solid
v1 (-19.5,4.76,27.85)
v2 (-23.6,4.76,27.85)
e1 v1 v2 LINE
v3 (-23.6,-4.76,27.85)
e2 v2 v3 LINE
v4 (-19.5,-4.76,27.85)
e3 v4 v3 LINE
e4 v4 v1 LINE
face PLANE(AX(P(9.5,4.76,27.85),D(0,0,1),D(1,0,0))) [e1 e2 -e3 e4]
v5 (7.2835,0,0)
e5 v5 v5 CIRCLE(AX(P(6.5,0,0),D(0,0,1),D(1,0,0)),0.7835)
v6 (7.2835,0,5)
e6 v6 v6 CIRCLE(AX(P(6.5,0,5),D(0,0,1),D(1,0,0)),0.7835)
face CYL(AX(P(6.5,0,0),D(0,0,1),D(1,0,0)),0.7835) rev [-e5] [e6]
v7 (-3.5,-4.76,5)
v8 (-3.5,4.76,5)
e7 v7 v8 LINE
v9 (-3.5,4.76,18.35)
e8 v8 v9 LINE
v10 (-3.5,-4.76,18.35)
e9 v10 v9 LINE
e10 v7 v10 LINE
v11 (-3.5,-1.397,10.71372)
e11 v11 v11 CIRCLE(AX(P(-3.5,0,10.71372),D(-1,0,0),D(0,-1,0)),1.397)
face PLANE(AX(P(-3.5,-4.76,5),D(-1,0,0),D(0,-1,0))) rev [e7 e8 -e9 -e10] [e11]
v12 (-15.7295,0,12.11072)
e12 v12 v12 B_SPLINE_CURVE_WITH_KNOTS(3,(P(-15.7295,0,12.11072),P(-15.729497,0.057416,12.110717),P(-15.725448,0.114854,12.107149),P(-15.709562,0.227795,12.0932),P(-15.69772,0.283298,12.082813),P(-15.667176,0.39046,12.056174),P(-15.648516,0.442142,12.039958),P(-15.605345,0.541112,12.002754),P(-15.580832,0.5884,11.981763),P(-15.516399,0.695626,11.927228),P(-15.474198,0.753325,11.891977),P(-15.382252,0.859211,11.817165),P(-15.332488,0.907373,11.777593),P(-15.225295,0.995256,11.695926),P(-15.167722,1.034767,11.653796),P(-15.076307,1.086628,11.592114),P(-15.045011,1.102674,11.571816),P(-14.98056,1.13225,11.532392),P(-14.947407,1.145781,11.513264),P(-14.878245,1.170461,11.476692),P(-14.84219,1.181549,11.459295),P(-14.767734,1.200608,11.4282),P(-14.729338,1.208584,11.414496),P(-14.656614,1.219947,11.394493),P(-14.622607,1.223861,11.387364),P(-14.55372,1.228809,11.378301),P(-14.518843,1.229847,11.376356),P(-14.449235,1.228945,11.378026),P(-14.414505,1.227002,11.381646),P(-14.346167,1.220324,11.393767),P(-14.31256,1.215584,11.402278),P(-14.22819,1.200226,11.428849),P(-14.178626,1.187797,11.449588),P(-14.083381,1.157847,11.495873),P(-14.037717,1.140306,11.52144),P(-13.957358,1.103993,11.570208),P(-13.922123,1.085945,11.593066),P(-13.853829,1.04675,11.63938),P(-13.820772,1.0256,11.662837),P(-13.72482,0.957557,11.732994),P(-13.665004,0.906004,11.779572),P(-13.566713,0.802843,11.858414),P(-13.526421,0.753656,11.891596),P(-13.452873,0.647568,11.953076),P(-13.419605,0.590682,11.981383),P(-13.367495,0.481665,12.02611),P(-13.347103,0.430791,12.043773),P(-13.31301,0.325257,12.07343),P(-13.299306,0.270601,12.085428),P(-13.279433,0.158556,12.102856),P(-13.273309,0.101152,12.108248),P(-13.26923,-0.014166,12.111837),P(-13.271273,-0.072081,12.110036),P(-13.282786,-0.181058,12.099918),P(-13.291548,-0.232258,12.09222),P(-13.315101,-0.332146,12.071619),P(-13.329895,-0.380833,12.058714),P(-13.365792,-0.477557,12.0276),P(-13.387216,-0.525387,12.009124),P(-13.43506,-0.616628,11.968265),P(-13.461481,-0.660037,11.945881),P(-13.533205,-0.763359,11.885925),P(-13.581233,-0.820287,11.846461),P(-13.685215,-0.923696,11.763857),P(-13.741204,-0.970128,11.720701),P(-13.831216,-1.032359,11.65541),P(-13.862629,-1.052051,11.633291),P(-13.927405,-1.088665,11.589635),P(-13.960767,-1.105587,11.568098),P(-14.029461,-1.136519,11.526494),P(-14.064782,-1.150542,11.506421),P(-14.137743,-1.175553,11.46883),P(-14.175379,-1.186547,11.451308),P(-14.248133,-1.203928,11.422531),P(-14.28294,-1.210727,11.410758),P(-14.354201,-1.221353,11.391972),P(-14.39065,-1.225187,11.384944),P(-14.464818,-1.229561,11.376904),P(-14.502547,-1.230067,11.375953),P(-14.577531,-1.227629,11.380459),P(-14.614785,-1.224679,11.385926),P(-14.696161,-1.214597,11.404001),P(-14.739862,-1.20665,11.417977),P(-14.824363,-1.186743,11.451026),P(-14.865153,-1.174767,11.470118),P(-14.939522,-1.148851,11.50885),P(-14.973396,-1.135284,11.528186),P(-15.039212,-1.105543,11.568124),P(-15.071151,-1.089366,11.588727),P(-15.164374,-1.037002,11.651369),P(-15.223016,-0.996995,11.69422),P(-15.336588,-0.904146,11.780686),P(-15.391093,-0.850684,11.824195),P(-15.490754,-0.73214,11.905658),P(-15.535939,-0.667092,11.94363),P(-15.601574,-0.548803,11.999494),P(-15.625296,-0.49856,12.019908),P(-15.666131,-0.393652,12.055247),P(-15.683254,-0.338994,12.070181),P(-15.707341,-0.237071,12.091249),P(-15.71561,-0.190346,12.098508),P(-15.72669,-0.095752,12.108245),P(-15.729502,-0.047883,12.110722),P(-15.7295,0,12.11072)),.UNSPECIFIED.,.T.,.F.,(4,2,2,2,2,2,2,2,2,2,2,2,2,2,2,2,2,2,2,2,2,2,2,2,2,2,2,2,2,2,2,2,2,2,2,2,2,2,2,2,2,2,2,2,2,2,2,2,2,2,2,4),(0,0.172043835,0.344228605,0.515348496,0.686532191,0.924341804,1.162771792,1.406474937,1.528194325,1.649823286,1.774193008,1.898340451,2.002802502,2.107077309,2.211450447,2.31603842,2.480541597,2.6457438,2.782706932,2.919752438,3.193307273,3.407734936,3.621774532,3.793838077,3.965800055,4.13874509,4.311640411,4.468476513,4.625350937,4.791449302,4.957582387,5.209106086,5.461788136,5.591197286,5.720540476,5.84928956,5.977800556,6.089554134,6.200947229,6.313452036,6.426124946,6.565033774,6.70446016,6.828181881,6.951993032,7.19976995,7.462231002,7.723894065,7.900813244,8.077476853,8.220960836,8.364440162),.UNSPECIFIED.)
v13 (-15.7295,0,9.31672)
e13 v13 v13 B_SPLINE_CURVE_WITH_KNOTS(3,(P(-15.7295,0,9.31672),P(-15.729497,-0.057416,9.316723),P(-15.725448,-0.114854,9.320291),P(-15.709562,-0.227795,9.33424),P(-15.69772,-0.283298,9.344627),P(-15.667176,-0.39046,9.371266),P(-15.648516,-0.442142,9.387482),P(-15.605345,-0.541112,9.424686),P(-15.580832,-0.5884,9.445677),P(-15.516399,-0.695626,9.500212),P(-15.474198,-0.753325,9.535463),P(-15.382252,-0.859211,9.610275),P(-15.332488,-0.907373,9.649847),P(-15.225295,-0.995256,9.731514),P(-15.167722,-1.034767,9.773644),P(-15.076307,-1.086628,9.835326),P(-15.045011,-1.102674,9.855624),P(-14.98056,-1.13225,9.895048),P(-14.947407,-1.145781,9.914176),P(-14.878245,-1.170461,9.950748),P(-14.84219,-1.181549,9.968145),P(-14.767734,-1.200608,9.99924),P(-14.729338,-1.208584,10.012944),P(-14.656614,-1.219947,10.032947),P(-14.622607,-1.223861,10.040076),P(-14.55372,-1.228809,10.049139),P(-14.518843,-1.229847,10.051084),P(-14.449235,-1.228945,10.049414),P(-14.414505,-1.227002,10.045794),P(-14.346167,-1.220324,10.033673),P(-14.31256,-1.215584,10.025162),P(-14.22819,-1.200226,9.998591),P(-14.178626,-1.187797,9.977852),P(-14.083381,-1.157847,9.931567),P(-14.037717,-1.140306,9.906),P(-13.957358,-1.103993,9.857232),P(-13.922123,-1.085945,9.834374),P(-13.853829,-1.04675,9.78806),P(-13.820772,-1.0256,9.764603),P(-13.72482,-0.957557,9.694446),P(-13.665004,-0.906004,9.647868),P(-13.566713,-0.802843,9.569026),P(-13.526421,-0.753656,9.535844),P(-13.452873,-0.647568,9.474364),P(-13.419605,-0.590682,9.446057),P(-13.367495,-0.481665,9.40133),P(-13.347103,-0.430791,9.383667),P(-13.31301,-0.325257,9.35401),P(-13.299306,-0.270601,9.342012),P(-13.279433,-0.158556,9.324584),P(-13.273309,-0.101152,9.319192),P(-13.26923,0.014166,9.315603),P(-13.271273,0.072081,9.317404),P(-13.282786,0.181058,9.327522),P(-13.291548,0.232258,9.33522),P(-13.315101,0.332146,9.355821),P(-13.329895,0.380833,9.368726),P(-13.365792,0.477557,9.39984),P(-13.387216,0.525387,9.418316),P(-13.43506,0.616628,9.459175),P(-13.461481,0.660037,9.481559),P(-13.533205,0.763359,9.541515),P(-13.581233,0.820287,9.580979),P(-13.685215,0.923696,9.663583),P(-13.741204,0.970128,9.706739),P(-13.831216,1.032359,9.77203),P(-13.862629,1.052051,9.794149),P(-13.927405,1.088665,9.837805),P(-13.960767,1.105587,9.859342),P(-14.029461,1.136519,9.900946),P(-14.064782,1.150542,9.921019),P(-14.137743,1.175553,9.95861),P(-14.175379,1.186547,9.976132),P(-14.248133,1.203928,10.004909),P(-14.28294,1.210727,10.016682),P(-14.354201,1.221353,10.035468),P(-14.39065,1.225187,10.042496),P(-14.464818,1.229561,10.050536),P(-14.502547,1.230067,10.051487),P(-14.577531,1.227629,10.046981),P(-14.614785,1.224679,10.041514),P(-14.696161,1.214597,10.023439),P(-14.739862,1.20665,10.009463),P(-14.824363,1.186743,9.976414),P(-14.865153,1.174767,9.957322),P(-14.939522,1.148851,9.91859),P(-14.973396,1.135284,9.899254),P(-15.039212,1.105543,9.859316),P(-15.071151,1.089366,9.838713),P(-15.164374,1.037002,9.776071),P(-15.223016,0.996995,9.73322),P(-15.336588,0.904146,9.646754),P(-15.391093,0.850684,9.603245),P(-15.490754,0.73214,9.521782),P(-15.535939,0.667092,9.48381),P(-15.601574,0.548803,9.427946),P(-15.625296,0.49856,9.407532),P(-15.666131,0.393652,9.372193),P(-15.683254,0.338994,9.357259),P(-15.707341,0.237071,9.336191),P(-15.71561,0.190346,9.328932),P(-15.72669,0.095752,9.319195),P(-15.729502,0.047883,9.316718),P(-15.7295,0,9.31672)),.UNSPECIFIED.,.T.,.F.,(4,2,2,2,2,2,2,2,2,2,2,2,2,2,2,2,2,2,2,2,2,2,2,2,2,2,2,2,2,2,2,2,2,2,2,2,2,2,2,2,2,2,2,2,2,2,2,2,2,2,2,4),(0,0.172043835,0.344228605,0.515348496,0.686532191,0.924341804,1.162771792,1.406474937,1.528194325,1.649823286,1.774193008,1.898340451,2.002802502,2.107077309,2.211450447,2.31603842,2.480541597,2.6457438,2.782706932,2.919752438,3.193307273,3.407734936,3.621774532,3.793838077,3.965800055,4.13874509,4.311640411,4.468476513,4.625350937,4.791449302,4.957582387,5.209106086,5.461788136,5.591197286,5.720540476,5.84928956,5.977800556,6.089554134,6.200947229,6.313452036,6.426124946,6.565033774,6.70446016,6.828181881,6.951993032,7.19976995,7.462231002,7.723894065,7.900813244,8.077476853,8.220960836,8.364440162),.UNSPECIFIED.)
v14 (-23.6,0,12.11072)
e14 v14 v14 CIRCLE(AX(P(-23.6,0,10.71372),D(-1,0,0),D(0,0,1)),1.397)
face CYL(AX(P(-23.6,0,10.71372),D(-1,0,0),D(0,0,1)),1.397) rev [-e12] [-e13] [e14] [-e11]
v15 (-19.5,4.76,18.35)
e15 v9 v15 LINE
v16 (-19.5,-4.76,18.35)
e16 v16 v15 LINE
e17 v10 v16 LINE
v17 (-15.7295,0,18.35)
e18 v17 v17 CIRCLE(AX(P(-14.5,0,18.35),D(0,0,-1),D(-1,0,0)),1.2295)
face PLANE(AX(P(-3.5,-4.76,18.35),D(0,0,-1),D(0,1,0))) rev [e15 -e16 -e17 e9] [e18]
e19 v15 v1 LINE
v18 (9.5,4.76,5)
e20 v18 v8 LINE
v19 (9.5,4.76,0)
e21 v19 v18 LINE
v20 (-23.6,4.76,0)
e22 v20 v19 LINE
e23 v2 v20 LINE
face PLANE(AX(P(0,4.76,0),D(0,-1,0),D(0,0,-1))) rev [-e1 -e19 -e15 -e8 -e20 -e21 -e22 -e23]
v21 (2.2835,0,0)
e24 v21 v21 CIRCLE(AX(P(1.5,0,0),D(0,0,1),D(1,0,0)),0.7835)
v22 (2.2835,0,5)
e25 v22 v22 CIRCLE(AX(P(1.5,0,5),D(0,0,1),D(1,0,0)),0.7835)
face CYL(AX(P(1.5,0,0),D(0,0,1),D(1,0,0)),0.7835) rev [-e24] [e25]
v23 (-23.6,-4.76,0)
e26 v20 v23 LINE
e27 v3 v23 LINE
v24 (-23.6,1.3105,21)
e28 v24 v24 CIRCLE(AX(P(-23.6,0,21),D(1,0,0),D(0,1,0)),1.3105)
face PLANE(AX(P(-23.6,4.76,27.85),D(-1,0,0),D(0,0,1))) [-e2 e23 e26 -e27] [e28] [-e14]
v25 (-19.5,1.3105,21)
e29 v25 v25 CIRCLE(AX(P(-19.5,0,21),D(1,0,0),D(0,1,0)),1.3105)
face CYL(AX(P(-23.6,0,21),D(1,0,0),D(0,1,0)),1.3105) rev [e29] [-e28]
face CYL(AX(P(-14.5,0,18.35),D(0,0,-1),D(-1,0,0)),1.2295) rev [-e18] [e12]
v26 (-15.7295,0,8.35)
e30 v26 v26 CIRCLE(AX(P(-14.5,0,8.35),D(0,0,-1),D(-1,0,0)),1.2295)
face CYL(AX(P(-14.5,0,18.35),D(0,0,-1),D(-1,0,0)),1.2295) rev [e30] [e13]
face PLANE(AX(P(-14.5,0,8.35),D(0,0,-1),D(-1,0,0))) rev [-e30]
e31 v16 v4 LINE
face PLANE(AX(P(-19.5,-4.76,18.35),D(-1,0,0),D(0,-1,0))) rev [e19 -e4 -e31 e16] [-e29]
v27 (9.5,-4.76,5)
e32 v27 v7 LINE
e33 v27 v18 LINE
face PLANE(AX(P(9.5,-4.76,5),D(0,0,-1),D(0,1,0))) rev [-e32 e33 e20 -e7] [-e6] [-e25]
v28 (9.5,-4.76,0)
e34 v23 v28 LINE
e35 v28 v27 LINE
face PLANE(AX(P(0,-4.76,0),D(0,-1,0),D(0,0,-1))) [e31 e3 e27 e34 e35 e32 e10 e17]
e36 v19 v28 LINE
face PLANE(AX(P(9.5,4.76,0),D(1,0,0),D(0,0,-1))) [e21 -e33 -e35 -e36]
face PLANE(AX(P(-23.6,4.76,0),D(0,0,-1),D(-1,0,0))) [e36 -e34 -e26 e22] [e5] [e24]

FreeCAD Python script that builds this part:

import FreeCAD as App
import Part
import Sketcher
Q = App.Units.Quantity


def add_polygon(sketch, points):
    """Adds a closed chain of lines whose ends are joined by coincident constraints."""
    first, n = sketch.GeometryCount, len(points)
    for a, b in zip(points, points[1:] + points[:1]):
        sketch.addGeometry(Part.LineSegment(App.Vector(*a, 0), App.Vector(*b, 0)), False)
    for i in range(n):
        sketch.addConstraint(Sketcher.Constraint("Coincident", first + i, 2, first + (i + 1) % n, 1))

doc = App.newDocument("Part")
body = doc.addObject("PartDesign::Body", "Body")

sketch1 = doc.addObject("Sketcher::SketchObject", "Sketch")
body.addObject(sketch1)
sketch1.AttachmentSupport = (doc.XZ_Plane, [""])
sketch1.MapMode = "FlatFace"
sketch1.AttachmentOffset = App.Placement(App.Vector(0, 0, 4.76), App.Rotation())
add_polygon(sketch1, [(-24, 28), (-24, 0), (10, 0), (10, 28)])
sketch1.addConstraint(Sketcher.Constraint("Vertical", 0))
sketch1.addConstraint(Sketcher.Constraint("Horizontal", 1))
sketch1.addConstraint(Sketcher.Constraint("Vertical", 2))
sketch1.addConstraint(Sketcher.Constraint("Horizontal", 3))
sketch1.addConstraint(Sketcher.Constraint("PointOnObject", 0, 2, -1))
sketch1.addConstraint(Sketcher.Constraint("DistanceX", 1, 1, 1, 2, Q("33.1 mm")))
sketch1.addConstraint(Sketcher.Constraint("DistanceY", 0, 2, 0, 1, Q("27.85 mm")))
sketch1.addConstraint(Sketcher.Constraint("DistanceX", 0, 2, -1, 1, Q("23.6 mm")))
pad1 = doc.addObject("PartDesign::Pad", "Pad")
body.addObject(pad1)
pad1.Profile = sketch1
pad1.Length = 9.52
pad1.Reversed = True

sketch2 = doc.addObject("Sketcher::SketchObject", "Sketch001")
body.addObject(sketch2)
sketch2.AttachmentSupport = (doc.XZ_Plane, [""])
sketch2.MapMode = "FlatFace"
sketch2.AttachmentOffset = App.Placement(App.Vector(0, 0, -4.76), App.Rotation())
add_polygon(sketch2, [(10, 28), (10, 5), (-4, 5), (-4, 28)])
sketch2.addConstraint(Sketcher.Constraint("Vertical", 0))
sketch2.addConstraint(Sketcher.Constraint("Horizontal", 1))
sketch2.addConstraint(Sketcher.Constraint("Vertical", 2))
sketch2.addConstraint(Sketcher.Constraint("Horizontal", 3))
sketch2.addConstraint(Sketcher.Constraint("DistanceX", 1, 2, 1, 1, Q("13 mm")))
sketch2.addConstraint(Sketcher.Constraint("DistanceY", -1, 1, 0, 2, Q("5 mm")))
sketch2.addConstraint(Sketcher.Constraint("DistanceY", 0, 2, 0, 1, Q("22.85 mm")))
sketch2.addConstraint(Sketcher.Constraint("DistanceX", -1, 1, 0, 2, Q("9.5 mm")))
pocket1 = doc.addObject("PartDesign::Pocket", "Pocket")
body.addObject(pocket1)
pocket1.Profile = sketch2
pocket1.Type = "ThroughAll"
pocket1.Reversed = True

sketch3 = doc.addObject("Sketcher::SketchObject", "Sketch002")
body.addObject(sketch3)
sketch3.AttachmentSupport = (doc.XZ_Plane, [""])
sketch3.MapMode = "FlatFace"
sketch3.AttachmentOffset = App.Placement(App.Vector(0, 0, -4.76), App.Rotation())
add_polygon(sketch3, [(-4, 28), (-4, 18), (-20, 18), (-20, 28)])
sketch3.addConstraint(Sketcher.Constraint("Vertical", 0))
sketch3.addConstraint(Sketcher.Constraint("Horizontal", 1))
sketch3.addConstraint(Sketcher.Constraint("Vertical", 2))
sketch3.addConstraint(Sketcher.Constraint("Horizontal", 3))
sketch3.addConstraint(Sketcher.Constraint("DistanceX", 1, 2, 1, 1, Q("16 mm")))
sketch3.addConstraint(Sketcher.Constraint("DistanceY", 0, 2, 0, 1, Q("9.5 mm")))
sketch3.addConstraint(Sketcher.Constraint("DistanceX", 0, 2, -1, 1, Q("3.5 mm")))
sketch3.addConstraint(Sketcher.Constraint("DistanceY", -1, 1, 0, 2, Q("18.35 mm")))
pocket2 = doc.addObject("PartDesign::Pocket", "Pocket001")
body.addObject(pocket2)
pocket2.Profile = sketch3
pocket2.Type = "ThroughAll"
pocket2.Reversed = True

sketch4 = doc.addObject("Sketcher::SketchObject", "Sketch003")
body.addObject(sketch4)
sketch4.AttachmentSupport = (doc.XZ_Plane, [""])
sketch4.MapMode = "FlatFace"
add_polygon(sketch4, [(7.3, 0), (6.5, 0), (6.5, 5), (7.3, 5)])
sketch4.addGeometry(Part.LineSegment(App.Vector(6.5, 0, 0), App.Vector(6.5, 5, 0)), True)
sketch4.addConstraint(Sketcher.Constraint("Horizontal", 0))
sketch4.addConstraint(Sketcher.Constraint("Vertical", 1))
sketch4.addConstraint(Sketcher.Constraint("Horizontal", 2))
sketch4.addConstraint(Sketcher.Constraint("Vertical", 3))
sketch4.addConstraint(Sketcher.Constraint("Vertical", 4))
sketch4.addConstraint(Sketcher.Constraint("Coincident", 4, 1, 0, 2))
sketch4.addConstraint(Sketcher.Constraint("PointOnObject", 0, 2, -1))
sketch4.addConstraint(Sketcher.Constraint("Horizontal", 2, 2, 4, 2))
sketch4.addConstraint(Sketcher.Constraint("DistanceY", 1, 1, 1, 2, Q("5 mm")))
sketch4.addConstraint(Sketcher.Constraint("DistanceX", -1, 1, 0, 2, Q("6.5 mm")))
sketch4.addConstraint(Sketcher.Constraint("DistanceX", 0, 2, 0, 1, Q("0.7835 mm")))
groove = doc.addObject("PartDesign::Groove", "Groove")
body.addObject(groove)
groove.Profile = sketch4
groove.ReferenceAxis = (sketch4, ["Axis0"])
groove.Angle = 360

sketch5 = doc.addObject("Sketcher::SketchObject", "Sketch004")
body.addObject(sketch5)
sketch5.AttachmentSupport = (doc.XZ_Plane, [""])
sketch5.MapMode = "FlatFace"
add_polygon(sketch5, [(2.3, 0), (1.5, 0), (1.5, 5), (2.3, 5)])
sketch5.addGeometry(Part.LineSegment(App.Vector(1.5, 0, 0), App.Vector(1.5, 5, 0)), True)
sketch5.addConstraint(Sketcher.Constraint("Horizontal", 0))
sketch5.addConstraint(Sketcher.Constraint("Vertical", 1))
sketch5.addConstraint(Sketcher.Constraint("Horizontal", 2))
sketch5.addConstraint(Sketcher.Constraint("Vertical", 3))
sketch5.addConstraint(Sketcher.Constraint("Vertical", 4))
sketch5.addConstraint(Sketcher.Constraint("Coincident", 4, 1, 0, 2))
sketch5.addConstraint(Sketcher.Constraint("PointOnObject", 0, 2, -1))
sketch5.addConstraint(Sketcher.Constraint("Horizontal", 2, 2, 4, 2))
sketch5.addConstraint(Sketcher.Constraint("DistanceY", 1, 1, 1, 2, Q("5 mm")))
sketch5.addConstraint(Sketcher.Constraint("DistanceX", -1, 1, 0, 2, Q("1.5 mm")))
sketch5.addConstraint(Sketcher.Constraint("DistanceX", 0, 2, 0, 1, Q("0.7835 mm")))
groove2 = doc.addObject("PartDesign::Groove", "Groove001")
body.addObject(groove2)
groove2.Profile = sketch5
groove2.ReferenceAxis = (sketch5, ["Axis0"])
groove2.Angle = 360

sketch6 = doc.addObject("Sketcher::SketchObject", "Sketch005")
body.addObject(sketch6)
sketch6.AttachmentSupport = (doc.XZ_Plane, [""])
sketch6.MapMode = "FlatFace"
add_polygon(sketch6, [(-13.3, 18.4), (-14.5, 18.4), (-14.5, 8.3), (-13.3, 8.3)])
sketch6.addGeometry(Part.LineSegment(App.Vector(-14.5, 18.4, 0), App.Vector(-14.5, 8.3, 0)), True)
sketch6.addConstraint(Sketcher.Constraint("Horizontal", 0))
sketch6.addConstraint(Sketcher.Constraint("Vertical", 1))
sketch6.addConstraint(Sketcher.Constraint("Horizontal", 2))
sketch6.addConstraint(Sketcher.Constraint("Vertical", 3))
sketch6.addConstraint(Sketcher.Constraint("Vertical", 4))
sketch6.addConstraint(Sketcher.Constraint("Coincident", 4, 1, 0, 2))
sketch6.addConstraint(Sketcher.Constraint("Horizontal", 2, 2, 4, 2))
sketch6.addConstraint(Sketcher.Constraint("DistanceY", 1, 2, 1, 1, Q("10 mm")))
sketch6.addConstraint(Sketcher.Constraint("DistanceX", 0, 2, -1, 1, Q("14.5 mm")))
sketch6.addConstraint(Sketcher.Constraint("DistanceY", -1, 1, 0, 2, Q("18.35 mm")))
sketch6.addConstraint(Sketcher.Constraint("DistanceX", 0, 2, 0, 1, Q("1.2295 mm")))
groove3 = doc.addObject("PartDesign::Groove", "Groove002")
body.addObject(groove3)
groove3.Profile = sketch6
groove3.ReferenceAxis = (sketch6, ["Axis0"])
groove3.Angle = 360

sketch7 = doc.addObject("Sketcher::SketchObject", "Sketch006")
body.addObject(sketch7)
sketch7.AttachmentSupport = (doc.XY_Plane, [""])
sketch7.MapMode = "FlatFace"
sketch7.AttachmentOffset = App.Placement(App.Vector(0, 0, 21), App.Rotation())
add_polygon(sketch7, [(-23.6, 1.3), (-23.6, 0), (-19.5, 0), (-19.5, 1.3)])
sketch7.addConstraint(Sketcher.Constraint("Vertical", 0))
sketch7.addConstraint(Sketcher.Constraint("Horizontal", 1))
sketch7.addConstraint(Sketcher.Constraint("Vertical", 2))
sketch7.addConstraint(Sketcher.Constraint("Horizontal", 3))
sketch7.addConstraint(Sketcher.Constraint("PointOnObject", 0, 2, -1))
sketch7.addConstraint(Sketcher.Constraint("DistanceX", 1, 1, 1, 2, Q("4.1 mm")))
sketch7.addConstraint(Sketcher.Constraint("DistanceX", 0, 2, -1, 1, Q("23.6 mm")))
sketch7.addConstraint(Sketcher.Constraint("DistanceY", 0, 2, 0, 1, Q("1.3105 mm")))
groove4 = doc.addObject("PartDesign::Groove", "Groove003")
body.addObject(groove4)
groove4.Profile = sketch7
groove4.ReferenceAxis = (sketch7, ["H_Axis"])
groove4.Angle = 360

sketch8 = doc.addObject("Sketcher::SketchObject", "Sketch007")
body.addObject(sketch8)
sketch8.AttachmentSupport = (doc.YZ_Plane, [""])
sketch8.MapMode = "FlatFace"
sketch8.AttachmentOffset = App.Placement(App.Vector(0, 0, -23.6), App.Rotation())
sketch8.addGeometry(Part.Circle(App.Vector(0, 10.7, 0), App.Vector(0, 0, 1), 1.4), False)
sketch8.addConstraint(Sketcher.Constraint("PointOnObject", 0, 3, -2))
sketch8.addConstraint(Sketcher.Constraint("Diameter", 0, Q("2.794 mm")))
sketch8.addConstraint(Sketcher.Constraint("DistanceY", -1, 1, 0, 3, Q("10.71372 mm")))
doc.recompute()
hole = doc.addObject("PartDesign::Hole", "Hole")
body.addObject(hole)
hole.Profile = sketch8
hole.ThreadType = "None"
hole.Diameter = 2.794
hole.DepthType = "ThroughAll"
hole.Reversed = True

doc.recompute()
